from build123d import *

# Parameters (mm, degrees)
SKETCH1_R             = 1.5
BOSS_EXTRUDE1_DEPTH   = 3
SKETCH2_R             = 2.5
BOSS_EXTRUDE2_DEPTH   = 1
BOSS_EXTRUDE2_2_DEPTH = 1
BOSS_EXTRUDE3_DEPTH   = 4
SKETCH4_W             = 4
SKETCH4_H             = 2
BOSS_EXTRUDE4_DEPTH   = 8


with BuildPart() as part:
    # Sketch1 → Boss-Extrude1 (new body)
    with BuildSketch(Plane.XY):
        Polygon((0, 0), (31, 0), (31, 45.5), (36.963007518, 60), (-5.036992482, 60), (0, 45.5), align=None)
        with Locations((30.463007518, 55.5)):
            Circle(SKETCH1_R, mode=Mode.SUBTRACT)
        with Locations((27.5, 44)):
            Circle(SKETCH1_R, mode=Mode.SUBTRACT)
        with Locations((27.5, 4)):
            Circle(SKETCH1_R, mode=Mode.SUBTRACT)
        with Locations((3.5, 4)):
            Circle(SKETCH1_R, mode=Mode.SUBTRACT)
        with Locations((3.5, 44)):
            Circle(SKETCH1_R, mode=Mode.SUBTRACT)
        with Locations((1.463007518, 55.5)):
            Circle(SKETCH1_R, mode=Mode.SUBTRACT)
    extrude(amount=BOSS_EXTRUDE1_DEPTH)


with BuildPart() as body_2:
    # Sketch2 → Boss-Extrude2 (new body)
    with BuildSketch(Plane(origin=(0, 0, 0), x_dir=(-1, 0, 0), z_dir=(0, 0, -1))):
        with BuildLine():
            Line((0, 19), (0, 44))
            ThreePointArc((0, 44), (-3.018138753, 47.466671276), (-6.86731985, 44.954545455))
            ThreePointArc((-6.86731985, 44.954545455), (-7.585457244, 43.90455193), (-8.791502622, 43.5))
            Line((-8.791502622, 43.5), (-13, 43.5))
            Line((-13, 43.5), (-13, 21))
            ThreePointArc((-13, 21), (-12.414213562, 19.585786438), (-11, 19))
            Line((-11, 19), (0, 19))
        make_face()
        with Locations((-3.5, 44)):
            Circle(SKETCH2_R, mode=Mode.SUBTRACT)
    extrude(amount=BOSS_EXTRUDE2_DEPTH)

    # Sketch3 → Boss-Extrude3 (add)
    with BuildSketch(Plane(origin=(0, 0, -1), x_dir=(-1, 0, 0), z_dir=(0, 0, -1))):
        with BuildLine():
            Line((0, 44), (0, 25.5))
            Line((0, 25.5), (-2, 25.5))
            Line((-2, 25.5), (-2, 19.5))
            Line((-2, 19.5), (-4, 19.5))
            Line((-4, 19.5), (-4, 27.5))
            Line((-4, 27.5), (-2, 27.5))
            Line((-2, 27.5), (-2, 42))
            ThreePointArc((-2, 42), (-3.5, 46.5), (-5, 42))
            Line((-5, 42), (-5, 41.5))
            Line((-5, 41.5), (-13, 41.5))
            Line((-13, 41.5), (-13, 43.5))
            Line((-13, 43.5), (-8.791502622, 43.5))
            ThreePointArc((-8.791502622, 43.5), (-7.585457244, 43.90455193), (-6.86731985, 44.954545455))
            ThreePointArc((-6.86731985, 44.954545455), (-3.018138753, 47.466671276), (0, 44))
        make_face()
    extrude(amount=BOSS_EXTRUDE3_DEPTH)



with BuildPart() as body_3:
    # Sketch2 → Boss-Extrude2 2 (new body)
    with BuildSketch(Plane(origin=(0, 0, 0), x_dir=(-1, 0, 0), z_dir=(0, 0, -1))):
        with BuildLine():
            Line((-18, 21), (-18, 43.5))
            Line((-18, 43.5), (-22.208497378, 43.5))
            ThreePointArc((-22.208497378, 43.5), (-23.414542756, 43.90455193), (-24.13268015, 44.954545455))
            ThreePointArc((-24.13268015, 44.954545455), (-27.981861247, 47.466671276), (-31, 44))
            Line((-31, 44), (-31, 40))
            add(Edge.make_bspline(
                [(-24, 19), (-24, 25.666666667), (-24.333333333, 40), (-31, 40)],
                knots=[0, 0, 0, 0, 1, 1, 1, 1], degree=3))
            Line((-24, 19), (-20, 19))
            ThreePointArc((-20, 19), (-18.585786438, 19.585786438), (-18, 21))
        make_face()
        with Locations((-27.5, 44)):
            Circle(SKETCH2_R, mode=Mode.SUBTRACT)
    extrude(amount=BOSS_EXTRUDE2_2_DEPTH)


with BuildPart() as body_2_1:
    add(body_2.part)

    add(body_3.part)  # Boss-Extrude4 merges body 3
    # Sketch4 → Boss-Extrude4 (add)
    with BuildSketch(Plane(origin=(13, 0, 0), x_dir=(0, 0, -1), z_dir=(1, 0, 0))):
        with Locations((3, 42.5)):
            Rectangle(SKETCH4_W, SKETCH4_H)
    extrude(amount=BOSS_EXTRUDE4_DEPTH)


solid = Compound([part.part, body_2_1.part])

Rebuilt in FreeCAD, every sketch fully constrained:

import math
import FreeCAD as App
import Part
import Sketcher
Q = App.Units.Quantity

doc = App.newDocument("Part")
body = doc.addObject("PartDesign::Body", "Body")

sketch1 = body.newObject("Sketcher::SketchObject", "Sketch")
sketch1.AttachmentSupport = (doc.getObject("XY_Plane"), [""])
sketch1.MapMode = "FlatFace"
sketch1.addGeometry(Part.LineSegment(App.Vector(0, 0, 0), App.Vector(31, 0, 0)), False)
sketch1.addGeometry(Part.LineSegment(App.Vector(31, 0, 0), App.Vector(31, 45.5, 0)), False)
sketch1.addGeometry(Part.LineSegment(App.Vector(31, 45.5, 0), App.Vector(37, 60, 0)), False)
sketch1.addGeometry(Part.LineSegment(App.Vector(37, 60, 0), App.Vector(-5, 60, 0)), False)
sketch1.addGeometry(Part.LineSegment(App.Vector(-5, 60, 0), App.Vector(0, 45.5, 0)), False)
sketch1.addGeometry(Part.LineSegment(App.Vector(0, 45.5, 0), App.Vector(0, 0, 0)), False)
sketch1.addGeometry(Part.Circle(App.Vector(3.5, 4, 0), App.Vector(0, 0, 1), 1.5), False)
sketch1.addGeometry(Part.Circle(App.Vector(27.5, 4, 0), App.Vector(0, 0, 1), 1.5), False)
sketch1.addGeometry(Part.Circle(App.Vector(3.5, 44, 0), App.Vector(0, 0, 1), 1.5), False)
sketch1.addGeometry(Part.Circle(App.Vector(1.5, 55.5, 0), App.Vector(0, 0, 1), 1.5), False)
sketch1.addGeometry(Part.Circle(App.Vector(27.5, 44, 0), App.Vector(0, 0, 1), 1.5), False)
sketch1.addGeometry(Part.Circle(App.Vector(30.5, 55.5, 0), App.Vector(0, 0, 1), 1.5), False)
sketch1.addConstraint(Sketcher.Constraint("Coincident", 0, 2, 1, 1))
sketch1.addConstraint(Sketcher.Constraint("Coincident", 1, 2, 2, 1))
sketch1.addConstraint(Sketcher.Constraint("Coincident", 2, 2, 3, 1))
sketch1.addConstraint(Sketcher.Constraint("Coincident", 3, 2, 4, 1))
sketch1.addConstraint(Sketcher.Constraint("Coincident", 4, 2, 5, 1))
sketch1.addConstraint(Sketcher.Constraint("Coincident", 5, 2, 0, 1))
sketch1.addConstraint(Sketcher.Constraint("Horizontal", 0))
sketch1.addConstraint(Sketcher.Constraint("Vertical", 1))
sketch1.addConstraint(Sketcher.Constraint("Horizontal", 3))
sketch1.addConstraint(Sketcher.Constraint("Vertical", 5))
sketch1.addConstraint(Sketcher.Constraint("Coincident", 5, 2, -1, 1))
sketch1.addConstraint(Sketcher.Constraint("Equal", 6, 7))
sketch1.addConstraint(Sketcher.Constraint("Equal", 7, 8))
sketch1.addConstraint(Sketcher.Constraint("Equal", 8, 9))
sketch1.addConstraint(Sketcher.Constraint("Equal", 9, 10))
sketch1.addConstraint(Sketcher.Constraint("Equal", 10, 11))
sketch1.addConstraint(Sketcher.Constraint("Horizontal", 6, 3, 7, 3))
sketch1.addConstraint(Sketcher.Constraint("Horizontal", 8, 3, 10, 3))
sketch1.addConstraint(Sketcher.Constraint("Horizontal", 9, 3, 11, 3))
sketch1.addConstraint(Sketcher.Constraint("Horizontal", 1, 2, 4, 2))
sketch1.addConstraint(Sketcher.Constraint("Vertical", 6, 3, 8, 3))
sketch1.addConstraint(Sketcher.Constraint("Vertical", 7, 3, 10, 3))
sketch1.addConstraint(Sketcher.Constraint("Diameter", 6, Q("3 mm")))
sketch1.addConstraint(Sketcher.Constraint("DistanceX", 0, 1, 0, 2, Q("31 mm")))
sketch1.addConstraint(Sketcher.Constraint("DistanceX", 3, 2, 3, 1, Q("42 mm")))
sketch1.addConstraint(Sketcher.Constraint("DistanceY", 1, 1, 1, 2, Q("45.5 mm")))
sketch1.addConstraint(Sketcher.Constraint("DistanceY", -1, 1, 6, 3, Q("4 mm")))
sketch1.addConstraint(Sketcher.Constraint("DistanceY", -1, 1, 8, 3, Q("44 mm")))
sketch1.addConstraint(Sketcher.Constraint("DistanceY", -1, 1, 2, 2, Q("60 mm")))
sketch1.addConstraint(Sketcher.Constraint("DistanceX", 6, 3, 7, 3, Q("24 mm")))
sketch1.addConstraint(Sketcher.Constraint("DistanceX", 9, 3, 11, 3, Q("29 mm")))
sketch1.addConstraint(Sketcher.Constraint("DistanceY", 1, 2, 11, 3, Q("10 mm")))
sketch1.addConstraint(Sketcher.Constraint("DistanceX", -1, 1, 6, 3, Q("3.5 mm")))
sketch1.addConstraint(Sketcher.Constraint("DistanceX", 11, 3, 2, 2, Q("6.5 mm")))
sketch1.addConstraint(Sketcher.Constraint("Distance", 4, Q("15.349961 mm")))
pad1 = body.newObject("PartDesign::Pad", "Pad")
pad1.Profile = sketch1
pad1.Length = 3
body2 = doc.addObject("PartDesign::Body", "Body001")

sketch2 = body2.newObject("Sketcher::SketchObject", "Sketch001")
sketch2.AttachmentSupport = (doc.getObject("XY_Plane001"), [""])
sketch2.MapMode = "FlatFace"
sketch2.addGeometry(Part.LineSegment(App.Vector(0, 19, 0), App.Vector(0, 44, 0)), False)
sketch2.addGeometry(Part.ArcOfCircle(Part.Circle(App.Vector(3.5, 44, 0), App.Vector(0, 0, 1), 3.5), math.radians(16), math.radians(180)), False)
sketch2.addGeometry(Part.ArcOfCircle(Part.Circle(App.Vector(8.8, 45.5, 0), App.Vector(0, 0, 1), 2), math.radians(-164), math.radians(-90)), False)
sketch2.addGeometry(Part.LineSegment(App.Vector(8.8, 43.5, 0), App.Vector(13, 43.5, 0)), False)
sketch2.addGeometry(Part.LineSegment(App.Vector(13, 43.5, 0), App.Vector(13, 21, 0)), False)
sketch2.addGeometry(Part.ArcOfCircle(Part.Circle(App.Vector(11, 21, 0), App.Vector(0, 0, 1), 2), math.radians(-90), math.radians(0)), False)
sketch2.addGeometry(Part.LineSegment(App.Vector(11, 19, 0), App.Vector(0, 19, 0)), False)
sketch2.addGeometry(Part.Circle(App.Vector(3.5, 44, 0), App.Vector(0, 0, 1), 2.5), False)
sketch2.addConstraint(Sketcher.Constraint("Tangent", 0, 2, 1, 2))
sketch2.addConstraint(Sketcher.Constraint("Tangent", 1, 1, 2, 1))
sketch2.addConstraint(Sketcher.Constraint("Tangent", 2, 2, 3, 1))
sketch2.addConstraint(Sketcher.Constraint("Coincident", 3, 2, 4, 1))
sketch2.addConstraint(Sketcher.Constraint("Tangent", 4, 2, 5, 2))
sketch2.addConstraint(Sketcher.Constraint("Tangent", 5, 1, 6, 1))
sketch2.addConstraint(Sketcher.Constraint("Coincident", 6, 2, 0, 1))
sketch2.addConstraint(Sketcher.Constraint("Vertical", 0))
sketch2.addConstraint(Sketcher.Constraint("Horizontal", 3))
sketch2.addConstraint(Sketcher.Constraint("Vertical", 4))
sketch2.addConstraint(Sketcher.Constraint("Horizontal", 6))
sketch2.addConstraint(Sketcher.Constraint("Coincident", 7, 3, 1, 3))
sketch2.addConstraint(Sketcher.Constraint("Equal", 2, 5))
sketch2.addConstraint(Sketcher.Constraint("PointOnObject", 0, 2, -2))
sketch2.addConstraint(Sketcher.Constraint("Diameter", 7, Q("5 mm")))
sketch2.addConstraint(Sketcher.Constraint("Radius", 2, Q("2 mm")))
sketch2.addConstraint(Sketcher.Constraint("Radius", 1, Q("3.5 mm")))
sketch2.addConstraint(Sketcher.Constraint("DistanceX", 6, 2, 6, 1, Q("11 mm")))
sketch2.addConstraint(Sketcher.Constraint("DistanceY", 0, 1, 0, 2, Q("25 mm")))
sketch2.addConstraint(Sketcher.Constraint("DistanceY", 4, 2, 4, 1, Q("22.5 mm")))
sketch2.addConstraint(Sketcher.Constraint("DistanceY", -1, 1, 1, 3, Q("44 mm")))
pad2 = body2.newObject("PartDesign::Pad", "Pad001")
pad2.Profile = sketch2
pad2.Length = 1
pad2.Reversed = True

sketch3 = body2.newObject("Sketcher::SketchObject", "Sketch002")
sketch3.AttachmentSupport = (doc.getObject("XY_Plane001"), [""])
sketch3.MapMode = "FlatFace"
sketch3.AttachmentOffset = App.Placement(App.Vector(0, 0, -1), App.Rotation())
sketch3.addGeometry(Part.LineSegment(App.Vector(0, 25.5, 0), App.Vector(0, 44, 0)), False)
sketch3.addGeometry(Part.ArcOfCircle(Part.Circle(App.Vector(3.5, 44, 0), App.Vector(0, 0, 1), 3.5), math.radians(16), math.radians(180)), False)
sketch3.addGeometry(Part.ArcOfCircle(Part.Circle(App.Vector(8.8, 45.5, 0), App.Vector(0, 0, 1), 2), math.radians(-164), math.radians(-90)), False)
sketch3.addGeometry(Part.LineSegment(App.Vector(8.8, 43.5, 0), App.Vector(13, 43.5, 0)), False)
sketch3.addGeometry(Part.LineSegment(App.Vector(13, 43.5, 0), App.Vector(13, 41.5, 0)), False)
sketch3.addGeometry(Part.LineSegment(App.Vector(13, 41.5, 0), App.Vector(5, 41.5, 0)), False)
sketch3.addGeometry(Part.LineSegment(App.Vector(5, 41.5, 0), App.Vector(5, 42, 0)), False)
sketch3.addGeometry(Part.ArcOfCircle(Part.Circle(App.Vector(3.5, 44, 0), App.Vector(0, 0, 1), 2.5), math.radians(-53), math.radians(233)), False)
sketch3.addGeometry(Part.LineSegment(App.Vector(2, 42, 0), App.Vector(2, 27.5, 0)), False)
sketch3.addGeometry(Part.LineSegment(App.Vector(2, 27.5, 0), App.Vector(4, 27.5, 0)), False)
sketch3.addGeometry(Part.LineSegment(App.Vector(4, 27.5, 0), App.Vector(4, 19.5, 0)), False)
sketch3.addGeometry(Part.LineSegment(App.Vector(4, 19.5, 0), App.Vector(2, 19.5, 0)), False)
sketch3.addGeometry(Part.LineSegment(App.Vector(2, 19.5, 0), App.Vector(2, 25.5, 0)), False)
sketch3.addGeometry(Part.LineSegment(App.Vector(2, 25.5, 0), App.Vector(0, 25.5, 0)), False)
sketch3.addConstraint(Sketcher.Constraint("Tangent", 0, 2, 1, 2))
sketch3.addConstraint(Sketcher.Constraint("Tangent", 1, 1, 2, 1))
sketch3.addConstraint(Sketcher.Constraint("Tangent", 2, 2, 3, 1))
sketch3.addConstraint(Sketcher.Constraint("Coincident", 3, 2, 4, 1))
sketch3.addConstraint(Sketcher.Constraint("Coincident", 4, 2, 5, 1))
sketch3.addConstraint(Sketcher.Constraint("Coincident", 5, 2, 6, 1))
sketch3.addConstraint(Sketcher.Constraint("Coincident", 6, 2, 7, 1))
sketch3.addConstraint(Sketcher.Constraint("Coincident", 7, 2, 8, 1))
sketch3.addConstraint(Sketcher.Constraint("Coincident", 8, 2, 9, 1))
sketch3.addConstraint(Sketcher.Constraint("Coincident", 9, 2, 10, 1))
sketch3.addConstraint(Sketcher.Constraint("Coincident", 10, 2, 11, 1))
sketch3.addConstraint(Sketcher.Constraint("Coincident", 11, 2, 12, 1))
sketch3.addConstraint(Sketcher.Constraint("Coincident", 12, 2, 13, 1))
sketch3.addConstraint(Sketcher.Constraint("Coincident", 13, 2, 0, 1))
sketch3.addConstraint(Sketcher.Constraint("Vertical", 0))
sketch3.addConstraint(Sketcher.Constraint("Horizontal", 3))
sketch3.addConstraint(Sketcher.Constraint("Vertical", 4))
sketch3.addConstraint(Sketcher.Constraint("Horizontal", 5))
sketch3.addConstraint(Sketcher.Constraint("Vertical", 6))
sketch3.addConstraint(Sketcher.Constraint("Vertical", 8))
sketch3.addConstraint(Sketcher.Constraint("Horizontal", 9))
sketch3.addConstraint(Sketcher.Constraint("Vertical", 10))
sketch3.addConstraint(Sketcher.Constraint("Horizontal", 11))
sketch3.addConstraint(Sketcher.Constraint("Vertical", 12))
sketch3.addConstraint(Sketcher.Constraint("Horizontal", 13))
sketch3.addConstraint(Sketcher.Constraint("Coincident", 7, 3, 1, 3))
sketch3.addConstraint(Sketcher.Constraint("PointOnObject", 0, 2, -2))
sketch3.addConstraint(Sketcher.Constraint("Horizontal", 6, 2, 7, 2))
sketch3.addConstraint(Sketcher.Constraint("Vertical", 8, 2, 11, 2))
sketch3.addConstraint(Sketcher.Constraint("Equal", 11, 13))
sketch3.addConstraint(Sketcher.Constraint("Equal", 13, 4))
sketch3.addConstraint(Sketcher.Constraint("Equal", 5, 10))
sketch3.addConstraint(Sketcher.Constraint("Radius", 2, Q("2 mm")))
sketch3.addConstraint(Sketcher.Constraint("Radius", 1, Q("3.5 mm")))
sketch3.addConstraint(Sketcher.Constraint("Radius", 7, Q("2.5 mm")))
sketch3.addConstraint(Sketcher.Constraint("DistanceX", 5, 2, 5, 1, Q("8 mm")))
sketch3.addConstraint(Sketcher.Constraint("DistanceX", 9, 1, 9, 2, Q("2 mm")))
sketch3.addConstraint(Sketcher.Constraint("DistanceY", 12, 1, 12, 2, Q("6 mm")))
sketch3.addConstraint(Sketcher.Constraint("DistanceY", 0, 1, 0, 2, Q("18.5 mm")))
sketch3.addConstraint(Sketcher.Constraint("DistanceY", 6, 1, 6, 2, Q("0.5 mm")))
sketch3.addConstraint(Sketcher.Constraint("DistanceY", -1, 1, 1, 3, Q("44 mm")))
pad3 = body2.newObject("PartDesign::Pad", "Pad002")
pad3.Profile = sketch3
pad3.Length = 4
pad3.Reversed = True
body3 = doc.addObject("PartDesign::Body", "Body002")

sketch4 = body3.newObject("Sketcher::SketchObject", "Sketch003")
sketch4.AttachmentSupport = (doc.getObject("XY_Plane002"), [""])
sketch4.MapMode = "FlatFace"
sketch4.addGeometry(Part.LineSegment(App.Vector(18, 21, 0), App.Vector(18, 43.5, 0)), False)
sketch4.addGeometry(Part.LineSegment(App.Vector(18, 43.5, 0), App.Vector(22.208497, 43.5, 0)), False)
sketch4.addGeometry(Part.ArcOfCircle(Part.Circle(App.Vector(22.208497, 45.5, 0), App.Vector(0, 0, 1), 2), math.radians(-90), math.radians(-15.82662)), False)
sketch4.addGeometry(Part.ArcOfCircle(Part.Circle(App.Vector(27.5, 44, 0), App.Vector(0, 0, 1), 3.5), math.radians(0), math.radians(164.17338)), False)
sketch4.addGeometry(Part.LineSegment(App.Vector(31, 44, 0), App.Vector(31, 40, 0)), False)
sketch4.addGeometry(Part.BSplineCurve([App.Vector(24, 19, 0), App.Vector(24, 25.666667, 0), App.Vector(24.333333, 40, 0), App.Vector(31, 40, 0)], [4, 4], [0, 1], False, 3, [1, 1, 1, 1], False), False)
sketch4.addGeometry(Part.LineSegment(App.Vector(24, 19, 0), App.Vector(20, 19, 0)), False)
sketch4.addGeometry(Part.ArcOfCircle(Part.Circle(App.Vector(20, 21, 0), App.Vector(0, 0, 1), 2), math.radians(-180), math.radians(-90)), False)
sketch4.addGeometry(Part.Circle(App.Vector(27.5, 44, 0), App.Vector(0, 0, 1), 2.5), False)
sketch4.addConstraint(Sketcher.Constraint("Block", 5))
sketch4.addConstraint(Sketcher.Constraint("Coincident", 0, 2, 1, 1))
sketch4.addConstraint(Sketcher.Constraint("Tangent", 1, 2, 2, 1))
sketch4.addConstraint(Sketcher.Constraint("Tangent", 2, 2, 3, 2))
sketch4.addConstraint(Sketcher.Constraint("Tangent", 3, 1, 4, 1))
sketch4.addConstraint(Sketcher.Constraint("Coincident", 4, 2, 5, 2))
sketch4.addConstraint(Sketcher.Constraint("Coincident", 5, 1, 6, 1))
sketch4.addConstraint(Sketcher.Constraint("Tangent", 6, 2, 7, 2))
sketch4.addConstraint(Sketcher.Constraint("Tangent", 7, 1, 0, 1))
sketch4.addConstraint(Sketcher.Constraint("Vertical", 0))
sketch4.addConstraint(Sketcher.Constraint("Horizontal", 1))
sketch4.addConstraint(Sketcher.Constraint("Vertical", 4))
sketch4.addConstraint(Sketcher.Constraint("Horizontal", 6))
sketch4.addConstraint(Sketcher.Constraint("Coincident", 8, 3, 3, 3))
sketch4.addConstraint(Sketcher.Constraint("Equal", 2, 7))
sketch4.addConstraint(Sketcher.Constraint("Equal", 6, 4))
sketch4.addConstraint(Sketcher.Constraint("Diameter", 8, Q("5 mm")))
sketch4.addConstraint(Sketcher.Constraint("Radius", 2, Q("2 mm")))
sketch4.addConstraint(Sketcher.Constraint("Radius", 3, Q("3.5 mm")))
sketch4.addConstraint(Sketcher.Constraint("DistanceX", 6, 2, 6, 1, Q("4 mm")))
sketch4.addConstraint(Sketcher.Constraint("DistanceY", 0, 1, 0, 2, Q("22.5 mm")))
pad4 = body3.newObject("PartDesign::Pad", "Pad003")
pad4.Profile = sketch4
pad4.Length = 1
pad4.Reversed = True
body2.AllowCompound = True
doc.recompute()

boolean = body2.newObject("PartDesign::Boolean", "Boolean")
boolean.Type = "Fuse"
boolean.addObjects([body3])

sketch5 = body2.newObject("Sketcher::SketchObject", "Sketch004")
sketch5.AttachmentSupport = (doc.getObject("YZ_Plane001"), [""])
sketch5.MapMode = "FlatFace"
sketch5.AttachmentOffset = App.Placement(App.Vector(0, 0, 13), App.Rotation())
sketch5.addGeometry(Part.LineSegment(App.Vector(43.5, -1, 0), App.Vector(41.5, -1, 0)), False)
sketch5.addGeometry(Part.LineSegment(App.Vector(41.5, -1, 0), App.Vector(41.5, -5, 0)), False)
sketch5.addGeometry(Part.LineSegment(App.Vector(41.5, -5, 0), App.Vector(43.5, -5, 0)), False)
sketch5.addGeometry(Part.LineSegment(App.Vector(43.5, -5, 0), App.Vector(43.5, -1, 0)), False)
sketch5.addConstraint(Sketcher.Constraint("Coincident", 0, 2, 1, 1))
sketch5.addConstraint(Sketcher.Constraint("Coincident", 1, 2, 2, 1))
sketch5.addConstraint(Sketcher.Constraint("Coincident", 2, 2, 3, 1))
sketch5.addConstraint(Sketcher.Constraint("Coincident", 3, 2, 0, 1))
sketch5.addConstraint(Sketcher.Constraint("Horizontal", 0))
sketch5.addConstraint(Sketcher.Constraint("Vertical", 1))
sketch5.addConstraint(Sketcher.Constraint("Horizontal", 2))
sketch5.addConstraint(Sketcher.Constraint("Vertical", 3))
sketch5.addConstraint(Sketcher.Constraint("DistanceX", 0, 2, 0, 1, Q("2 mm")))
sketch5.addConstraint(Sketcher.Constraint("DistanceY", 1, 2, 1, 1, Q("4 mm")))
sketch5.addConstraint(Sketcher.Constraint("DistanceY", 0, 2, -1, 1, Q("1 mm")))
sketch5.addConstraint(Sketcher.Constraint("DistanceX", -1, 1, 0, 2, Q("41.5 mm")))
pad5 = body2.newObject("PartDesign::Pad", "Pad004")
pad5.Profile = sketch5
pad5.Length = 8

doc.recompute()
